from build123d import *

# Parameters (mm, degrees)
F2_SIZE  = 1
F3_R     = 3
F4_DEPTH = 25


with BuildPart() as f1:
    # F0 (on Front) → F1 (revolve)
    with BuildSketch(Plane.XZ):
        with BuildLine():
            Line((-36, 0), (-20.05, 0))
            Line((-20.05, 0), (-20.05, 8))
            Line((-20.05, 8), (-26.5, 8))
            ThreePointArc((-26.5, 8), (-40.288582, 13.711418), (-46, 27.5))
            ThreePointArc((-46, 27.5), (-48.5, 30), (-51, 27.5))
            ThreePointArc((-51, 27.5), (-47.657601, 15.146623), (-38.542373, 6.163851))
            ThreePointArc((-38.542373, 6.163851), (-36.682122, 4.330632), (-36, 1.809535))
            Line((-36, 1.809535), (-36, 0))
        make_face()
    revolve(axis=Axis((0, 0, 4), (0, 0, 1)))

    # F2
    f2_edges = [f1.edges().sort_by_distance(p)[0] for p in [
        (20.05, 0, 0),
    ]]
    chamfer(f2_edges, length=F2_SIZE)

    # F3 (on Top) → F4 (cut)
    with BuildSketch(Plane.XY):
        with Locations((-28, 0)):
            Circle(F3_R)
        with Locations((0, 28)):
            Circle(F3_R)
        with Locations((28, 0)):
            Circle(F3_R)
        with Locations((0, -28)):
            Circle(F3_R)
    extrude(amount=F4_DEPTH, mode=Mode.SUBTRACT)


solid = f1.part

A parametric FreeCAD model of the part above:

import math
import FreeCAD as App
import Part
import Sketcher
from FreeCAD import Vector


def edges_at(feature, points):
    """Names of the edges that pass closest to the given points."""
    edges = feature.Shape.Edges
    near = lambda p: min(range(len(edges)), key=lambda i: edges[i].distToShape(Part.Vertex(*p))[0])
    return sorted({f"Edge{near(p) + 1}" for p in points})

doc = App.newDocument("Part")
body = doc.addObject("PartDesign::Body", "Body")

sketch1 = doc.addObject("Sketcher::SketchObject", "Sketch")
body.addObject(sketch1)
sketch1.AttachmentSupport = (doc.XZ_Plane, [""])
sketch1.MapMode = "FlatFace"
sketch1.addGeometry([
    Part.LineSegment(Vector(-36, 0, 0), Vector(-20.1, 0, 0)),
    Part.LineSegment(Vector(-20.1, 0, 0), Vector(-20.1, 8, 0)),
    Part.LineSegment(Vector(-20.1, 8, 0), Vector(-26.5, 8, 0)),
    Part.ArcOfCircle(Part.Circle(Vector(-26.5, 27.5, 0), Vector(0, 0, 1), 19.5), math.radians(-180), math.radians(-90)),
    Part.ArcOfCircle(Part.Circle(Vector(-48.5, 27.5, 0), Vector(0, 0, 1), 2.5), math.radians(0), math.radians(180)),
    Part.ArcOfCircle(Part.Circle(Vector(-26.5, 27.5, 0), Vector(0, 0, 1), 24.5), math.radians(180), math.radians(241)),
    Part.ArcOfCircle(Part.Circle(Vector(-41, 1.8, 0), Vector(0, 0, 1), 5), math.radians(0), math.radians(61)),
    Part.LineSegment(Vector(-36, 1.8, 0), Vector(-36, 0, 0)),
], False)
sketch1.addConstraint([
    Sketcher.Constraint("Coincident", 0, 2, 1, 1),
    Sketcher.Constraint("Coincident", 1, 2, 2, 1),
    Sketcher.Constraint("Tangent", 2, 2, 3, 2),
    Sketcher.Constraint("Tangent", 3, 1, 4, 1),
    Sketcher.Constraint("Tangent", 4, 2, 5, 1),
    Sketcher.Constraint("Tangent", 5, 2, 6, 2),
    Sketcher.Constraint("Tangent", 6, 1, 7, 1),
    Sketcher.Constraint("Coincident", 7, 2, 0, 1),
    Sketcher.Constraint("Horizontal", 0),
    Sketcher.Constraint("Vertical", 1),
    Sketcher.Constraint("Horizontal", 2),
    Sketcher.Constraint("Vertical", 7),
    Sketcher.Constraint("Coincident", 5, 3, 3, 3),
    Sketcher.Constraint("PointOnObject", 0, 2, -1),
    Sketcher.Constraint("Horizontal", 3, 3, 4, 3),
    Sketcher.Constraint("Radius", 6, 4.999999),
    Sketcher.Constraint("Radius", 3, 19.500001),
    Sketcher.Constraint("Radius", 4, 2.5),
    Sketcher.Constraint("DistanceY", 1, 1, 1, 2, 8.0),
    Sketcher.Constraint("DistanceX", 6, 3, -1, 1, 40.999999),
    Sketcher.Constraint("DistanceX", 3, 1, -1, 1, 46.0),
    Sketcher.Constraint("DistanceX", 0, 1, 0, 2, 15.95),
])
revolution = doc.addObject("PartDesign::Revolution", "Revolution")
body.addObject(revolution)
revolution.Profile = sketch1
revolution.ReferenceAxis = (sketch1, ["V_Axis"])
revolution.Angle = 360
doc.recompute()

chamfer = doc.addObject("PartDesign::Chamfer", "Chamfer")
body.addObject(chamfer)
chamfer.Base = (revolution, edges_at(revolution, [(20.05, 0, 0)]))
chamfer.Size = 1

sketch2 = doc.addObject("Sketcher::SketchObject", "Sketch001")
body.addObject(sketch2)
sketch2.AttachmentSupport = (doc.XY_Plane, [""])
sketch2.MapMode = "FlatFace"
sketch2.addGeometry([
    Part.Circle(Vector(-28, 0, 0), Vector(0, 0, 1), 3),
    Part.Circle(Vector(0, 28, 0), Vector(0, 0, 1), 3),
    Part.Circle(Vector(28, 0, 0), Vector(0, 0, 1), 3),
    Part.Circle(Vector(0, -28, 0), Vector(0, 0, 1), 3),
], False)
sketch2.addConstraint([
    Sketcher.Constraint("Equal", 0, 1),
    Sketcher.Constraint("Equal", 1, 2),
    Sketcher.Constraint("Equal", 2, 3),
    Sketcher.Constraint("Symmetric", 0, 3, 2, 3, -1, 1),
    Sketcher.Constraint("Symmetric", 1, 3, 3, 3, -1, 1),
    Sketcher.Constraint("PointOnObject", 0, 3, -1),
    Sketcher.Constraint("PointOnObject", 1, 3, -2),
    Sketcher.Constraint("Diameter", 0, 6.0),
    Sketcher.Constraint("DistanceX", 0, 3, -1, 1, 28.0),
    Sketcher.Constraint("DistanceY", -1, 1, 1, 3, 28.0),
])
pocket1 = doc.addObject("PartDesign::Pocket", "Pocket")
body.addObject(pocket1)
pocket1.Profile = sketch2
pocket1.Length = 25
pocket1.Reversed = True

doc.recompute()
